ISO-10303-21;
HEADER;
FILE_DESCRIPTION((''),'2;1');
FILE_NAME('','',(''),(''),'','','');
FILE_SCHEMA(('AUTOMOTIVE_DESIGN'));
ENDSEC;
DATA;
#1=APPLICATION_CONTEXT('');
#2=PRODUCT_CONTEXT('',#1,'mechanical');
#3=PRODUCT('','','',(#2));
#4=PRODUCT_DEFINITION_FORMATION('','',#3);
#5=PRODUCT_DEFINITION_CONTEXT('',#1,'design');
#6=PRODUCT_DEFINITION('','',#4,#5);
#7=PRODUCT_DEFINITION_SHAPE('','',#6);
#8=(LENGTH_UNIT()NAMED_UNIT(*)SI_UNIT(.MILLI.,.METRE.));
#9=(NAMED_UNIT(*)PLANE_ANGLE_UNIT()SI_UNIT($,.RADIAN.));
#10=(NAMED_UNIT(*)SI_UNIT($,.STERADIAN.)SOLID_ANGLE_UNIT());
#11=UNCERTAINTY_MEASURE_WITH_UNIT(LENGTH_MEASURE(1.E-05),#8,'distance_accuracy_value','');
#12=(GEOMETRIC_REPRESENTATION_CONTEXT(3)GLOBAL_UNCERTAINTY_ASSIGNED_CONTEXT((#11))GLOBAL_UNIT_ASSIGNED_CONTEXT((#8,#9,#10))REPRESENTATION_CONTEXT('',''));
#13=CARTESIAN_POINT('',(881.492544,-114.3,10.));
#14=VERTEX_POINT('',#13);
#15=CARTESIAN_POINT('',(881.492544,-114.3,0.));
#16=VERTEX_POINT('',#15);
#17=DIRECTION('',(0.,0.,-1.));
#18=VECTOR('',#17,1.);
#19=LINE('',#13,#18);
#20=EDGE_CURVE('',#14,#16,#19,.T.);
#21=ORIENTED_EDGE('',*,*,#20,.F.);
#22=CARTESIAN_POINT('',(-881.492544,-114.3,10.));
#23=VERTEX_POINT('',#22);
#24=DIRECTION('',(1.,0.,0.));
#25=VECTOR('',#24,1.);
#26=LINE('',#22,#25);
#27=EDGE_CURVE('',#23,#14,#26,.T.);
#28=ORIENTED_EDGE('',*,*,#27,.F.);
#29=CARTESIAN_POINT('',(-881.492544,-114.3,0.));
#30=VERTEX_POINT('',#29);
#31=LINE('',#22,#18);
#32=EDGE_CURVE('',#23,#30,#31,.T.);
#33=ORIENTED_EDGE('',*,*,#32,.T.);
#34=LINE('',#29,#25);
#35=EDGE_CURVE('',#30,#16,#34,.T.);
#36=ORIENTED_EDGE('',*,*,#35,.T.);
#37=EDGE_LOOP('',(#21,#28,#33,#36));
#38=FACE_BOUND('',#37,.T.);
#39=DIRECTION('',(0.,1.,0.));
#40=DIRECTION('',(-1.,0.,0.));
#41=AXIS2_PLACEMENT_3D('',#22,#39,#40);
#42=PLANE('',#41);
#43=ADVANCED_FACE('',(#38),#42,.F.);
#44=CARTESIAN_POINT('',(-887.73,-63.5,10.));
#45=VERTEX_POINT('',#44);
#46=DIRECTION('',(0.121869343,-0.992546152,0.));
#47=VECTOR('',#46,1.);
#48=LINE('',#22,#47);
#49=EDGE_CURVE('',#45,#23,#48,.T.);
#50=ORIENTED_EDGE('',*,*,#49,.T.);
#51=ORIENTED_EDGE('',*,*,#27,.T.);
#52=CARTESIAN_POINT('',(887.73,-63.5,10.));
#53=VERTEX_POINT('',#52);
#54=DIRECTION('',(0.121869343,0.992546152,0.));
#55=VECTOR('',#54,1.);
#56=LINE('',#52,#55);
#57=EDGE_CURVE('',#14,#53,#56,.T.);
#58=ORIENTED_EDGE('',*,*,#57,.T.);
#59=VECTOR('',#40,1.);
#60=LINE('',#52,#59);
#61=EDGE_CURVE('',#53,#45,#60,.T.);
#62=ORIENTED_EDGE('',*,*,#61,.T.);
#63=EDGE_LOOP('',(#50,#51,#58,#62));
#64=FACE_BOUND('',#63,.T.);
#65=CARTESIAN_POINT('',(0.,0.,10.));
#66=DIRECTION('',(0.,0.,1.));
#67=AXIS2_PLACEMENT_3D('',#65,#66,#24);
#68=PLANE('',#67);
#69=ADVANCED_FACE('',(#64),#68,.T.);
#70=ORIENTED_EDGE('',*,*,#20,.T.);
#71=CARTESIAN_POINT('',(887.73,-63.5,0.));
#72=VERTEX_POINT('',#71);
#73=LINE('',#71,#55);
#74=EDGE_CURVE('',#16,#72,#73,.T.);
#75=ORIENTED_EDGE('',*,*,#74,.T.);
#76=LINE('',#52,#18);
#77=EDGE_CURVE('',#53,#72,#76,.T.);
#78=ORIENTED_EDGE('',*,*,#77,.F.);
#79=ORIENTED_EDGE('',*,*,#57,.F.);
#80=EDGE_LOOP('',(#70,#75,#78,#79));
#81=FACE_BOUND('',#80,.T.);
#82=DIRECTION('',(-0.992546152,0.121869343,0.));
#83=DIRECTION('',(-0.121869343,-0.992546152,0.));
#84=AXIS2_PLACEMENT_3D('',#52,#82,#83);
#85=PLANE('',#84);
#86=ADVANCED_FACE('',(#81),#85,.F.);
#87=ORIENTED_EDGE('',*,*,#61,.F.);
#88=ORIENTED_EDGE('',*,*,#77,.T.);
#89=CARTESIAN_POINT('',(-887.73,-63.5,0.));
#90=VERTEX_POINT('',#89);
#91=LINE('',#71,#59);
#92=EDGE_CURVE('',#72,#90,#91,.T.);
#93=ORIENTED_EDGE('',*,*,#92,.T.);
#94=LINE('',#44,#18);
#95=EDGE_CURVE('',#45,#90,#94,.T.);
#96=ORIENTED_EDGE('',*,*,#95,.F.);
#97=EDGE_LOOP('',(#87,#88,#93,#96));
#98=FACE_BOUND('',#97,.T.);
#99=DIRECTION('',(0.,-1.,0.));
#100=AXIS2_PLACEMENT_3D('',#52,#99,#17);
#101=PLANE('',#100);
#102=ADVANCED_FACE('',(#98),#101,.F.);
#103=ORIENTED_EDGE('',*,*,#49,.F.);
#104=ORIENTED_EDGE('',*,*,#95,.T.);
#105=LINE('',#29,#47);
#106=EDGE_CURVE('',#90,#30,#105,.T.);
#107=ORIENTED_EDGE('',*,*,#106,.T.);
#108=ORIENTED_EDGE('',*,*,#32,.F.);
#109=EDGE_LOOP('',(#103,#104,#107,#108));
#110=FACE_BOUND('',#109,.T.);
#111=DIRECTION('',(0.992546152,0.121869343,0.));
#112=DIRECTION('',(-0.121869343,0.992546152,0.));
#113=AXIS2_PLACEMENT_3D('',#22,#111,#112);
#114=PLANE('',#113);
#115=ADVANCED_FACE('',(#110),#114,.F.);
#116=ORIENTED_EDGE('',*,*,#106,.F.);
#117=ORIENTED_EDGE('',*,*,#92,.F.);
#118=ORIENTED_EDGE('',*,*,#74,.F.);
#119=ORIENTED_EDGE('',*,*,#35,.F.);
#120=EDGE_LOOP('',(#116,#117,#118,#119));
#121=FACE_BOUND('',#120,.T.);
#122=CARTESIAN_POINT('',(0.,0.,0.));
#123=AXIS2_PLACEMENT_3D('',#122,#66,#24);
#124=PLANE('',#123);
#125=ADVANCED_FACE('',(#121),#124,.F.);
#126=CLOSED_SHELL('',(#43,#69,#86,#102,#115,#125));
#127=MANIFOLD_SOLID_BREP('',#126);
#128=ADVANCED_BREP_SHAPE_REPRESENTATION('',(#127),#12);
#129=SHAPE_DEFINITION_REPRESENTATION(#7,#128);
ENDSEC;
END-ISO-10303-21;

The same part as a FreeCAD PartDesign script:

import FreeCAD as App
import Part
import Sketcher
from FreeCAD import Vector
Q = App.Units.Quantity

doc = App.newDocument("Part")
body = doc.addObject("PartDesign::Body", "Body")

sketch1 = body.newObject("Sketcher::SketchObject", "Sketch")
sketch1.AttachmentSupport = (doc.getObject("XY_Plane"), [""])
sketch1.MapMode = "FlatFace"
sketch1.addGeometry(Part.LineSegment(Vector(-881, -114, 0), Vector(881, -114, 0)), False)
sketch1.addGeometry(Part.LineSegment(Vector(881, -114, 0), Vector(888, -64, 0)), False)
sketch1.addGeometry(Part.LineSegment(Vector(888, -64, 0), Vector(-888, -64, 0)), False)
sketch1.addGeometry(Part.LineSegment(Vector(-888, -64, 0), Vector(-881, -114, 0)), False)
sketch1.addConstraint(Sketcher.Constraint("Coincident", 0, 2, 1, 1))
sketch1.addConstraint(Sketcher.Constraint("Coincident", 1, 2, 2, 1))
sketch1.addConstraint(Sketcher.Constraint("Coincident", 2, 2, 3, 1))
sketch1.addConstraint(Sketcher.Constraint("Coincident", 3, 2, 0, 1))
sketch1.addConstraint(Sketcher.Constraint("Horizontal", 0))
sketch1.addConstraint(Sketcher.Constraint("Horizontal", 2))
sketch1.addConstraint(Sketcher.Constraint("Equal", 1, 3))
sketch1.addConstraint(Sketcher.Constraint("Angle", 1, Q("83 deg")))
sketch1.addConstraint(Sketcher.Constraint("DistanceX", 2, 2, 2, 1, Q("1775.46 mm")))
sketch1.addConstraint(Sketcher.Constraint("DistanceY", 0, 2, -1, 1, Q("114.3 mm")))
sketch1.addConstraint(Sketcher.Constraint("DistanceY", 1, 2, -1, 1, Q("63.5 mm")))
sketch1.addConstraint(Sketcher.Constraint("DistanceX", -1, 1, 1, 2, Q("887.73 mm")))
pad1 = body.newObject("PartDesign::Pad", "Pad")
pad1.Profile = sketch1
pad1.Length = 10

doc.recompute()
